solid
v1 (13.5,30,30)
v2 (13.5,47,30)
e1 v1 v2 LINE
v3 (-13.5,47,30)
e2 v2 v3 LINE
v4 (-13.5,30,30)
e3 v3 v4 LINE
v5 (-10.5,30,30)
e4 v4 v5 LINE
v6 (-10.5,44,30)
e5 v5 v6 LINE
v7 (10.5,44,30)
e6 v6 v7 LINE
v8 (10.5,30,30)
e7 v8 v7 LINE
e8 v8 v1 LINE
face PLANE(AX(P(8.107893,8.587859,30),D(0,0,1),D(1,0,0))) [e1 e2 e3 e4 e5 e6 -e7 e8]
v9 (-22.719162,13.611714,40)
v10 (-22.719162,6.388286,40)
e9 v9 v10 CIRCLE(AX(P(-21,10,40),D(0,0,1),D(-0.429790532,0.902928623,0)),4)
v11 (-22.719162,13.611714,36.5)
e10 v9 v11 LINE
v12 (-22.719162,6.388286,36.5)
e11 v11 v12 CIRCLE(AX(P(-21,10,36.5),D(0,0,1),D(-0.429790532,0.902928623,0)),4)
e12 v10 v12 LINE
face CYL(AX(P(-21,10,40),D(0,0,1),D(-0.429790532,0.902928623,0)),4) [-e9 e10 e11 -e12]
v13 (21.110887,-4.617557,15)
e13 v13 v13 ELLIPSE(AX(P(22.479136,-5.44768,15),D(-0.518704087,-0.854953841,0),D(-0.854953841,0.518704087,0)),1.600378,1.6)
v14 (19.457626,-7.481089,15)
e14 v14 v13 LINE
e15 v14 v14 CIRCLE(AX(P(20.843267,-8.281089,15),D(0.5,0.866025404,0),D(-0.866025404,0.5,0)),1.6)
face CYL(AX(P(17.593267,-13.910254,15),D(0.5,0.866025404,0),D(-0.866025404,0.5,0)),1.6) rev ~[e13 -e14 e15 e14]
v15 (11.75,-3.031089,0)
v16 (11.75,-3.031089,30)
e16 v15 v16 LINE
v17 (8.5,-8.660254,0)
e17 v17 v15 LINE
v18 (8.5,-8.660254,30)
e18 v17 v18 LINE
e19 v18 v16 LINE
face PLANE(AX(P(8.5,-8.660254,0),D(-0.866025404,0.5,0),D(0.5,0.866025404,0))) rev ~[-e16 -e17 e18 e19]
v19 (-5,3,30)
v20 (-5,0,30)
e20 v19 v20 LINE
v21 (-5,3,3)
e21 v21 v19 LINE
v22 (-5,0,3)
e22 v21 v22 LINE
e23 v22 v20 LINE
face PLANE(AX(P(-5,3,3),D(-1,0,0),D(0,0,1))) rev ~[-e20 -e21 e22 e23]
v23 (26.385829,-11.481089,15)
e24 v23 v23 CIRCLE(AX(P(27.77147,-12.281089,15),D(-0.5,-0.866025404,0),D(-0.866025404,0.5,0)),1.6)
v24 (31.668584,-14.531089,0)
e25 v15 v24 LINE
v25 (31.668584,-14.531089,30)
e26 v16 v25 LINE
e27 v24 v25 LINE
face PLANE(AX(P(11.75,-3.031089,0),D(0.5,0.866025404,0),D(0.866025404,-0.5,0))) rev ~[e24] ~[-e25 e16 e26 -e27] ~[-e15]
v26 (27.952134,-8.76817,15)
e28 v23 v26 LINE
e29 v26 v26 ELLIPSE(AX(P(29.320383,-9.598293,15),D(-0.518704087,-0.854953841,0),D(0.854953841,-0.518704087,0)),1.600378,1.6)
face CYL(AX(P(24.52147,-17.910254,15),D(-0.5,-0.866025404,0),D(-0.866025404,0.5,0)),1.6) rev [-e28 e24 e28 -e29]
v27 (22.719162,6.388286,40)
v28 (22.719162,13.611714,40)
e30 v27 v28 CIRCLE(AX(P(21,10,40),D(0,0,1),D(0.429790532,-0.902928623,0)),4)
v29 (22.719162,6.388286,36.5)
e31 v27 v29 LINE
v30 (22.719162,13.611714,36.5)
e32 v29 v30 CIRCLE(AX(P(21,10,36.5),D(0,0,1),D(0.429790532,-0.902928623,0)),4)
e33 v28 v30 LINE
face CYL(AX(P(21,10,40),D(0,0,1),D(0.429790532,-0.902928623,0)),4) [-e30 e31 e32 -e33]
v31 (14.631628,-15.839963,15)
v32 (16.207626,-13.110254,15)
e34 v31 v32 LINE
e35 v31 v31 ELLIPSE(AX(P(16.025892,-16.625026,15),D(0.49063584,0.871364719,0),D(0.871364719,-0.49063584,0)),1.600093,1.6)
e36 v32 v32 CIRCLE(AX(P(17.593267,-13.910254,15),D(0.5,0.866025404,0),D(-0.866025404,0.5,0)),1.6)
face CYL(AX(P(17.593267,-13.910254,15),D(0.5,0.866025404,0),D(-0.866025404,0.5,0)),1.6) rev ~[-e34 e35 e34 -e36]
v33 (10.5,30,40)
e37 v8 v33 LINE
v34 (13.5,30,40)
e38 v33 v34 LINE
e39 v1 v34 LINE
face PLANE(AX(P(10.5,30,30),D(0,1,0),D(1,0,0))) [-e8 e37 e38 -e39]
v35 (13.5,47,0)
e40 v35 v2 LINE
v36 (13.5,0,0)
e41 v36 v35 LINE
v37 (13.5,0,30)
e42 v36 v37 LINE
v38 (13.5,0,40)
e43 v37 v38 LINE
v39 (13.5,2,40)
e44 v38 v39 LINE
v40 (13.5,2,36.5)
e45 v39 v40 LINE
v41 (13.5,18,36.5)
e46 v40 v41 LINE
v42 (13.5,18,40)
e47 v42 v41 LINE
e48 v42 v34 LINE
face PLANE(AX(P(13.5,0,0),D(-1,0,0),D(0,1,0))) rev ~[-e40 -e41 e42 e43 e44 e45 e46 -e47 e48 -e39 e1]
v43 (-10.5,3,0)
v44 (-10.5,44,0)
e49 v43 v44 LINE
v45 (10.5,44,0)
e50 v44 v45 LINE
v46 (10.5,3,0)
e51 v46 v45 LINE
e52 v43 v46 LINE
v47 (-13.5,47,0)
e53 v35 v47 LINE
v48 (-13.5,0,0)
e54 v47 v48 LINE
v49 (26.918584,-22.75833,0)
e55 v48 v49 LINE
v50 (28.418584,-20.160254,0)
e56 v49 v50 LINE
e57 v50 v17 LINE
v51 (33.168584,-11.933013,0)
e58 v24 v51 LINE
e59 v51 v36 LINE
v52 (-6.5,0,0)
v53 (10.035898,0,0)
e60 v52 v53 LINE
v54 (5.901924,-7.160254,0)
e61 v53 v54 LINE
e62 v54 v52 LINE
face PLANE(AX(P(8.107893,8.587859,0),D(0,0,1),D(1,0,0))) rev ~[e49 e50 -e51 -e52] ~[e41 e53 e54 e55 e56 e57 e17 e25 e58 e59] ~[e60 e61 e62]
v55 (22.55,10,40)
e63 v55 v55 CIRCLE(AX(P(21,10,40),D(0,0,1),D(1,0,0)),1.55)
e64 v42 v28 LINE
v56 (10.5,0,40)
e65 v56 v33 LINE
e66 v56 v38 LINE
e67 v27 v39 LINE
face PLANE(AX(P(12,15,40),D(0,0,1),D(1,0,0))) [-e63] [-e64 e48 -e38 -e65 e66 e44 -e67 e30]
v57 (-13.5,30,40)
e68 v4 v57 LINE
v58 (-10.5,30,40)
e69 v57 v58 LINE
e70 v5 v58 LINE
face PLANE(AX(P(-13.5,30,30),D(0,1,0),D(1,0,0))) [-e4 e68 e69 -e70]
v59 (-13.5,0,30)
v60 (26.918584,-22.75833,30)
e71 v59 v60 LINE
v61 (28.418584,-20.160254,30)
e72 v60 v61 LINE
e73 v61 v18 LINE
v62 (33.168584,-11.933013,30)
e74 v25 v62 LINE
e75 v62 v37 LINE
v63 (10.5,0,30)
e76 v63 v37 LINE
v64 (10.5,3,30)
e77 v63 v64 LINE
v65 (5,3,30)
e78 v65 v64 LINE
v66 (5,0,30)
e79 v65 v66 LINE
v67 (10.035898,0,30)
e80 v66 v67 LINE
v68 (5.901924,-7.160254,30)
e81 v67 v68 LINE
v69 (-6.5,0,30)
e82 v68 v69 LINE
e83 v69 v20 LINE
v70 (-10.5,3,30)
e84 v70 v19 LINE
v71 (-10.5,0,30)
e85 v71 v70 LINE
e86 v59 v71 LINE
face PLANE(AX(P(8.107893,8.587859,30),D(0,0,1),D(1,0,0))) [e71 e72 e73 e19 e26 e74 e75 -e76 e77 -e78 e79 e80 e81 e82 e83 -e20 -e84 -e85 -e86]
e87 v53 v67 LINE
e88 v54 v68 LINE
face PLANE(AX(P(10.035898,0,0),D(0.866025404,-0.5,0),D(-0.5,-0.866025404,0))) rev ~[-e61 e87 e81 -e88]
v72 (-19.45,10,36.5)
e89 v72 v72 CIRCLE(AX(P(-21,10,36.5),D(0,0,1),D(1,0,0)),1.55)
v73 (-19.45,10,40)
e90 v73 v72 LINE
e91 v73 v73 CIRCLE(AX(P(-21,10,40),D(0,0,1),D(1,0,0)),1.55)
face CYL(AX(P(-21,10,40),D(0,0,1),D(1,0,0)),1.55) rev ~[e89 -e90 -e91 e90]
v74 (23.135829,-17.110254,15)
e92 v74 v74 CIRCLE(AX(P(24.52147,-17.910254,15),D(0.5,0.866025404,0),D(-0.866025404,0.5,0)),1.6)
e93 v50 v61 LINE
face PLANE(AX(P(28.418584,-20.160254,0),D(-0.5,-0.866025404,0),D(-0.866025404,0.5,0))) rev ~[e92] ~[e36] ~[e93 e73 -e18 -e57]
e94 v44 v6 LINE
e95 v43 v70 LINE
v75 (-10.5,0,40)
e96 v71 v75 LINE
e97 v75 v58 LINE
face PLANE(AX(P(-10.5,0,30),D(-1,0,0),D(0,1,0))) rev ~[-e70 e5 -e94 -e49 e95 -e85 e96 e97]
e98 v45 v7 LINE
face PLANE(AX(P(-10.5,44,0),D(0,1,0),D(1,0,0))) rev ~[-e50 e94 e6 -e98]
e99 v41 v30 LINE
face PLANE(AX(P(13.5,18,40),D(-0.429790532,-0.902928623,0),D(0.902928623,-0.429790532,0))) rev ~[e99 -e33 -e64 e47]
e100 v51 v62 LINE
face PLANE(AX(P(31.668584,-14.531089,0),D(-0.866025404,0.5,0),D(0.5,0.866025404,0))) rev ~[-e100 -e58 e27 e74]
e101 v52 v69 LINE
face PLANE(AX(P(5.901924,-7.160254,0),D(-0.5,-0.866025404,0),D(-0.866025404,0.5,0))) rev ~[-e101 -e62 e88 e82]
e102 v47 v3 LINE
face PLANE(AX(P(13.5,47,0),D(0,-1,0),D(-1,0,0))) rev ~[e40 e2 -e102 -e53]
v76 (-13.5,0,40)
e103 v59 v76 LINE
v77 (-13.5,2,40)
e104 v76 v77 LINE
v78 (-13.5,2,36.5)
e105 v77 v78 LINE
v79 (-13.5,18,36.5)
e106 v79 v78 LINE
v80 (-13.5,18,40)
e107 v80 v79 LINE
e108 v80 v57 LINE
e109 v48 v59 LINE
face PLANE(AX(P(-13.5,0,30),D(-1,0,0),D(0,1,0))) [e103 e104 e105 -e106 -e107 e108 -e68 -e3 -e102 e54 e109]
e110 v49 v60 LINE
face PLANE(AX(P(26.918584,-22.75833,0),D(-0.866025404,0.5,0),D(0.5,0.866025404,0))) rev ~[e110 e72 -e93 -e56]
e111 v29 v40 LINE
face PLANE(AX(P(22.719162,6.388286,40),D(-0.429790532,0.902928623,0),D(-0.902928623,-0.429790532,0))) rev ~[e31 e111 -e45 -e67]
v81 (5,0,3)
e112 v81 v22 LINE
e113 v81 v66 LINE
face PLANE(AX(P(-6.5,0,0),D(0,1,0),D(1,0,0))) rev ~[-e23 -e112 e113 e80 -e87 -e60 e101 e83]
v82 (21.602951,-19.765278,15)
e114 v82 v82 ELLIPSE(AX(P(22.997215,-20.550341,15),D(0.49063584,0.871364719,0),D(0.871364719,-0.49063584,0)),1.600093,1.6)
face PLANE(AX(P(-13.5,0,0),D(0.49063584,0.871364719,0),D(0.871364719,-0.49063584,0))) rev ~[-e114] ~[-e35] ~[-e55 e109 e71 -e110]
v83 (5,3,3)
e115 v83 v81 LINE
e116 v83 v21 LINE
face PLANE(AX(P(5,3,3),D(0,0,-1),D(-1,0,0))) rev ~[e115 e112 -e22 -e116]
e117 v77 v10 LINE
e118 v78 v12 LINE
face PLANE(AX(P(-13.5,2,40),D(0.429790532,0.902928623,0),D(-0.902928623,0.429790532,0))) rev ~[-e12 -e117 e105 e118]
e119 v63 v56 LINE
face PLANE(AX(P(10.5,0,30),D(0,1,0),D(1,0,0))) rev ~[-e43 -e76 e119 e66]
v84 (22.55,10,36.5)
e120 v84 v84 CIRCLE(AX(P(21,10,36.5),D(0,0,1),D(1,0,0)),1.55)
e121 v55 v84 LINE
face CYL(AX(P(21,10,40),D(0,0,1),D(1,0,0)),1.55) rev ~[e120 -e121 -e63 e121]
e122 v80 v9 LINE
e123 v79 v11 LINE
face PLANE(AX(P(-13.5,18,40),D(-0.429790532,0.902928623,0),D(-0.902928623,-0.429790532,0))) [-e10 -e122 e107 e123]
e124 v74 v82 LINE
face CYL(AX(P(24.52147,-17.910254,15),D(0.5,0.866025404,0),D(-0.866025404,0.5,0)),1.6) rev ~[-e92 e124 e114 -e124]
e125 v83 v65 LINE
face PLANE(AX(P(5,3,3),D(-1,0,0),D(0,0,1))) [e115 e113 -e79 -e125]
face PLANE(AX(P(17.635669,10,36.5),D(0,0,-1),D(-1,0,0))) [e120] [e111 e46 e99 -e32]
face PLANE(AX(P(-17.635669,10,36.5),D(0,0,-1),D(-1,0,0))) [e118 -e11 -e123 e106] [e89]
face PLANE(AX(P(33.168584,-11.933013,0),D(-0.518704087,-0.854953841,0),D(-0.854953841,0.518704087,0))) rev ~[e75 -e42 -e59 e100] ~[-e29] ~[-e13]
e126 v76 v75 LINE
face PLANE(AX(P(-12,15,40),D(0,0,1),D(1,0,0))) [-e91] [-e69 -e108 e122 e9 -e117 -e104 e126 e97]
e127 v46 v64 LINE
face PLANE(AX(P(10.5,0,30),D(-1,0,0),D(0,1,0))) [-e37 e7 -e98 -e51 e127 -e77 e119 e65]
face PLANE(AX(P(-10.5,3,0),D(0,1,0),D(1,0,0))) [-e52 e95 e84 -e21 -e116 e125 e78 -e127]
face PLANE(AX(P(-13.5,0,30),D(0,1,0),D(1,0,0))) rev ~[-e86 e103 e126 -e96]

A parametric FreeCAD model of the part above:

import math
import FreeCAD as App
import Part
import Sketcher

V = App.Vector
Q = App.Units.Quantity

doc = App.newDocument("Part")
body = doc.addObject("PartDesign::Body", "Body")

# Sketch on XY plane
sketch1 = body.newObject("Sketcher::SketchObject", "Sketch")
sketch1.AttachmentSupport = (doc.getObject("XY_Plane"), [""])
sketch1.MapMode = "FlatFace"
sketch1.addGeometry([
    Part.LineSegment(V(13.5, 0, 0), V(13.5, 47, 0)),  # 0
    Part.LineSegment(V(13.5, 47, 0), V(-13.5, 47, 0)),  # 1
    Part.LineSegment(V(-13.5, 47, 0), V(-13.5, 0, 0)),  # 2
    Part.LineSegment(V(-13.5, 0, 0), V(26.918584, -22.75833, 0)),  # 3
    Part.LineSegment(V(26.918584, -22.75833, 0), V(28.418584, -20.160254, 0)),  # 4
    Part.LineSegment(V(28.418584, -20.160254, 0), V(8.5, -8.660254, 0)),  # 5
    Part.LineSegment(V(8.5, -8.660254, 0), V(11.75, -3.031089, 0)),  # 6
    Part.LineSegment(V(11.75, -3.031089, 0), V(31.668584, -14.531089, 0)),  # 7
    Part.LineSegment(V(31.668584, -14.531089, 0), V(33.168584, -11.933013, 0)),  # 8
    Part.LineSegment(V(33.168584, -11.933013, 0), V(13.5, 0, 0)),  # 9
    Part.LineSegment(V(5.901924, -7.160254, 0), V(-6.5, 0, 0)),  # 10
    Part.LineSegment(V(-6.5, 0, 0), V(10.035898, 0, 0)),  # 11
    Part.LineSegment(V(10.035898, 0, 0), V(5.901924, -7.160254, 0)),  # 12
    Part.LineSegment(V(10.5, 3, 0), V(-10.5, 3, 0)),  # 13
    Part.LineSegment(V(-10.5, 3, 0), V(-10.5, 44, 0)),  # 14
    Part.LineSegment(V(-10.5, 44, 0), V(10.5, 44, 0)),  # 15
    Part.LineSegment(V(10.5, 44, 0), V(10.5, 3, 0)),  # 16
], False)
sketch1.addConstraint([
    Sketcher.Constraint("Coincident", 0, 2, 1, 1),
    Sketcher.Constraint("Coincident", 1, 2, 2, 1),
    Sketcher.Constraint("Coincident", 2, 2, 3, 1),
    Sketcher.Constraint("Coincident", 3, 2, 4, 1),
    Sketcher.Constraint("Coincident", 4, 2, 5, 1),
    Sketcher.Constraint("Coincident", 5, 2, 6, 1),
    Sketcher.Constraint("Coincident", 6, 2, 7, 1),
    Sketcher.Constraint("Coincident", 7, 2, 8, 1),
    Sketcher.Constraint("Coincident", 8, 2, 9, 1),
    Sketcher.Constraint("Coincident", 9, 2, 0, 1),
    Sketcher.Constraint("Coincident", 10, 2, 11, 1),
    Sketcher.Constraint("Coincident", 11, 2, 12, 1),
    Sketcher.Constraint("Coincident", 12, 2, 10, 1),
    Sketcher.Constraint("Coincident", 13, 2, 14, 1),
    Sketcher.Constraint("Coincident", 14, 2, 15, 1),
    Sketcher.Constraint("Coincident", 15, 2, 16, 1),
    Sketcher.Constraint("Coincident", 16, 2, 13, 1),
    Sketcher.Constraint("Vertical", 0),
    Sketcher.Constraint("Horizontal", 1),
    Sketcher.Constraint("Vertical", 2),
    Sketcher.Constraint("Horizontal", 11),
    Sketcher.Constraint("Horizontal", 13),
    Sketcher.Constraint("Vertical", 14),
    Sketcher.Constraint("Horizontal", 15),
    Sketcher.Constraint("Vertical", 16),
    Sketcher.Constraint("Symmetric", 2, 2, 9, 2, -1, 1),
    Sketcher.Constraint("PointOnObject", 2, 2, -1),
    Sketcher.Constraint("PointOnObject", 10, 2, -1),
    Sketcher.Constraint("Perpendicular", 4, 5),
    Sketcher.Constraint("Perpendicular", 5, 6),
    Sketcher.Constraint("Perpendicular", 6, 7),
    Sketcher.Constraint("Perpendicular", 7, 8),
    Sketcher.Constraint("Perpendicular", 8, 10),
    Sketcher.Constraint("Perpendicular", 10, 12),
    Sketcher.Constraint("Equal", 5, 7),
    Sketcher.Constraint("Equal", 4, 8),
    Sketcher.Constraint("DistanceX", 1, 2, 1, 1, Q("27 mm")),
    Sketcher.Constraint("DistanceX", 13, 2, 13, 1, Q("21 mm")),
    Sketcher.Constraint("DistanceY", 0, 1, 0, 2, Q("47 mm")),
    Sketcher.Constraint("DistanceY", 14, 1, 14, 2, Q("41 mm")),
    Sketcher.Constraint("Angle", 4, Q("60 deg")),
    Sketcher.Constraint("Distance", 4, Q("3 mm")),
    Sketcher.Constraint("Distance", 5, Q("23 mm")),
    Sketcher.Constraint("DistanceY", -1, 1, 13, 2, Q("3 mm")),
    Sketcher.Constraint("DistanceX", 2, 2, 5, 2, Q("22 mm")),
    Sketcher.Constraint("DistanceX", 2, 2, 10, 2, Q("7 mm")),
    Sketcher.Constraint("DistanceX", 2, 2, 13, 2, Q("3 mm")),
    Sketcher.Constraint("Distance", 6, Q("6.5 mm")),
    Sketcher.Constraint("DistanceY", 5, 2, 12, 2, Q("1.5 mm")),
    Sketcher.Constraint("DistanceX", 11, 1, 11, 2, Q("16.535898 mm")),
])
pad1 = body.newObject("PartDesign::Pad", "Pad")
pad1.Profile = sketch1
pad1.Length = 30

# Sketch on XZ plane
sketch2 = body.newObject("Sketcher::SketchObject", "Sketch001")
sketch2.AttachmentSupport = (doc.getObject("XZ_Plane"), [""])
sketch2.MapMode = "FlatFace"
sketch2.AttachmentOffset = App.Placement(V(0, 0, -3), App.Rotation())
sketch2.addGeometry([
    Part.LineSegment(V(5, 30, 0), V(5, 3, 0)),
    Part.LineSegment(V(5, 3, 0), V(-5, 3, 0)),
    Part.LineSegment(V(-5, 3, 0), V(-5, 30, 0)),
    Part.LineSegment(V(-5, 30, 0), V(5, 30, 0)),
], False)
sketch2.addConstraint([
    Sketcher.Constraint("Coincident", 0, 2, 1, 1),
    Sketcher.Constraint("Coincident", 1, 2, 2, 1),
    Sketcher.Constraint("Coincident", 2, 2, 3, 1),
    Sketcher.Constraint("Coincident", 3, 2, 0, 1),
    Sketcher.Constraint("Vertical", 0),
    Sketcher.Constraint("Horizontal", 1),
    Sketcher.Constraint("Vertical", 2),
    Sketcher.Constraint("Horizontal", 3),
    Sketcher.Constraint("DistanceX", 1, 2, 1, 1, Q("10 mm")),
    Sketcher.Constraint("DistanceY", 0, 2, 0, 1, Q("27 mm")),
    Sketcher.Constraint("DistanceX", -1, 1, 0, 2, Q("5 mm")),
    Sketcher.Constraint("DistanceY", -1, 1, 0, 2, Q("3 mm")),
])
pocket1 = body.newObject("PartDesign::Pocket", "Pocket")
pocket1.Profile = sketch2
pocket1.Length = 3.1
pocket1.Reversed = True

# Sketch on an angled plane
sketch3 = body.newObject("Sketcher::SketchObject", "Sketch002")
sketch3.Placement = App.Placement(V(-1.625, -2.814583, 0), App.Rotation(V(-0.866025404, 0.5, 0), V(0, 0, 1), V(0.5, 0.866025404, 0), "ZXY"))
sketch3.addGeometry([
    Part.Circle(V(-30.191343, 15, 0), V(0, 0, 1), 1.6),
    Part.Circle(V(-22.191343, 15, 0), V(0, 0, 1), 1.6),
], False)
sketch3.addConstraint([
    Sketcher.Constraint("Equal", 0, 1),
    Sketcher.Constraint("Horizontal", 0, 3, 1, 3),
    Sketcher.Constraint("Diameter", 0, Q("3.2 mm")),
    Sketcher.Constraint("DistanceY", -1, 1, 0, 3, Q("15 mm")),
    Sketcher.Constraint("DistanceX", 0, 3, 1, 3, Q("8 mm")),
    Sketcher.Constraint("DistanceX", 0, 3, -1, 1, Q("30.191343 mm")),
])
pocket2 = body.newObject("PartDesign::Pocket", "Pocket001")
pocket2.Profile = sketch3
pocket2.Length = 25
pocket2.Midplane = True

# Sketch on XY plane
sketch4 = body.newObject("Sketcher::SketchObject", "Sketch003")
sketch4.AttachmentSupport = (doc.getObject("XY_Plane"), [""])
sketch4.MapMode = "FlatFace"
sketch4.AttachmentOffset = App.Placement(V(0, 0, 30), App.Rotation())
sketch4.addGeometry([
    Part.LineSegment(V(-13.5, 30, 0), V(-13.5, 0, 0)),  # 0
    Part.LineSegment(V(-13.5, 0, 0), V(-10.5, 0, 0)),  # 1
    Part.LineSegment(V(-10.5, 0, 0), V(-10.5, 30, 0)),  # 2
    Part.LineSegment(V(-10.5, 30, 0), V(-13.5, 30, 0)),  # 3
    Part.LineSegment(V(10.5, 30, 0), V(10.5, 0, 0)),  # 4
    Part.LineSegment(V(10.5, 0, 0), V(13.5, 0, 0)),  # 5
    Part.LineSegment(V(13.5, 0, 0), V(13.5, 30, 0)),  # 6
    Part.LineSegment(V(13.5, 30, 0), V(10.5, 30, 0)),  # 7
], False)
sketch4.addConstraint([
    Sketcher.Constraint("Coincident", 0, 2, 1, 1),
    Sketcher.Constraint("Coincident", 1, 2, 2, 1),
    Sketcher.Constraint("Coincident", 2, 2, 3, 1),
    Sketcher.Constraint("Coincident", 3, 2, 0, 1),
    Sketcher.Constraint("Coincident", 4, 2, 5, 1),
    Sketcher.Constraint("Coincident", 5, 2, 6, 1),
    Sketcher.Constraint("Coincident", 6, 2, 7, 1),
    Sketcher.Constraint("Coincident", 7, 2, 4, 1),
    Sketcher.Constraint("Vertical", 0),
    Sketcher.Constraint("Horizontal", 1),
    Sketcher.Constraint("Vertical", 2),
    Sketcher.Constraint("Horizontal", 3),
    Sketcher.Constraint("Vertical", 4),
    Sketcher.Constraint("Horizontal", 5),
    Sketcher.Constraint("Vertical", 6),
    Sketcher.Constraint("Horizontal", 7),
    Sketcher.Constraint("Symmetric", 1, 2, 4, 2, -1, 1),
    Sketcher.Constraint("Symmetric", 0, 2, 5, 2, -2),
    Sketcher.Constraint("Horizontal", 3, 2, 6, 2),
    Sketcher.Constraint("DistanceX", 1, 1, 1, 2, Q("3 mm")),
    Sketcher.Constraint("DistanceY", 0, 2, 0, 1, Q("30 mm")),
    Sketcher.Constraint("DistanceX", 1, 2, 4, 2, Q("21 mm")),
])
pad2 = body.newObject("PartDesign::Pad", "Pad001")
pad2.Profile = sketch4
pad2.Length = 10

# Sketch on XY plane
sketch5 = body.newObject("Sketcher::SketchObject", "Sketch004")
sketch5.AttachmentSupport = (doc.getObject("XY_Plane"), [""])
sketch5.MapMode = "FlatFace"
sketch5.AttachmentOffset = App.Placement(V(0, 0, 40), App.Rotation())
sketch5.addGeometry([
    Part.LineSegment(V(-13.5, 2, 0), V(-13.5, 18, 0)),  # 0
    Part.LineSegment(V(-13.5, 18, 0), V(-22.719162, 13.611714, 0)),  # 1
    Part.ArcOfCircle(Part.Circle(V(-21, 10, 0), V(0, 0, 1), 4), math.radians(115.454267), math.radians(244.545733)),  # 2
    Part.LineSegment(V(-22.719162, 6.388286, 0), V(-13.5, 2, 0)),  # 3
    Part.Circle(V(-21, 10, 0), V(0, 0, 1), 1.55),  # 4
    Part.LineSegment(V(13.5, 2, 0), V(22.719162, 6.388286, 0)),  # 5
    Part.ArcOfCircle(Part.Circle(V(21, 10, 0), V(0, 0, 1), 4), math.radians(-64.545733), math.radians(64.545733)),  # 6
    Part.LineSegment(V(22.719162, 13.611714, 0), V(13.5, 18, 0)),  # 7
    Part.LineSegment(V(13.5, 18, 0), V(13.5, 2, 0)),  # 8
    Part.Circle(V(21, 10, 0), V(0, 0, 1), 1.55),  # 9
], False)
sketch5.addConstraint([
    Sketcher.Constraint("Coincident", 0, 2, 1, 1),
    Sketcher.Constraint("Tangent", 1, 2, 2, 1),
    Sketcher.Constraint("Tangent", 2, 2, 3, 1),
    Sketcher.Constraint("Coincident", 3, 2, 0, 1),
    Sketcher.Constraint("Tangent", 5, 2, 6, 1),
    Sketcher.Constraint("Tangent", 6, 2, 7, 1),
    Sketcher.Constraint("Coincident", 7, 2, 8, 1),
    Sketcher.Constraint("Coincident", 8, 2, 5, 1),
    Sketcher.Constraint("Vertical", 0),
    Sketcher.Constraint("Vertical", 8),
    Sketcher.Constraint("Coincident", 4, 3, 2, 3),
    Sketcher.Constraint("Coincident", 9, 3, 6, 3),
    Sketcher.Constraint("Equal", 2, 6),
    Sketcher.Constraint("Equal", 4, 9),
    Sketcher.Constraint("Symmetric", 2, 3, 6, 3, -2),
    Sketcher.Constraint("Symmetric", 0, 2, 7, 2, -2),
    Sketcher.Constraint("Parallel", 1, 5),
    Sketcher.Constraint("Parallel", 3, 7),
    Sketcher.Constraint("Radius", 2, Q("4 mm")),
    Sketcher.Constraint("Diameter", 4, Q("3.1 mm")),
    Sketcher.Constraint("DistanceY", 0, 1, 0, 2, Q("16 mm")),
    Sketcher.Constraint("DistanceX", 2, 3, -1, 1, Q("21 mm")),
    Sketcher.Constraint("DistanceY", -1, 1, 2, 3, Q("10 mm")),
    Sketcher.Constraint("DistanceX", 0, 2, 7, 2, Q("27 mm")),
])
pad3 = body.newObject("PartDesign::Pad", "Pad002")
pad3.Profile = sketch5
pad3.Length = 3.5
pad3.Reversed = True

doc.recompute()
